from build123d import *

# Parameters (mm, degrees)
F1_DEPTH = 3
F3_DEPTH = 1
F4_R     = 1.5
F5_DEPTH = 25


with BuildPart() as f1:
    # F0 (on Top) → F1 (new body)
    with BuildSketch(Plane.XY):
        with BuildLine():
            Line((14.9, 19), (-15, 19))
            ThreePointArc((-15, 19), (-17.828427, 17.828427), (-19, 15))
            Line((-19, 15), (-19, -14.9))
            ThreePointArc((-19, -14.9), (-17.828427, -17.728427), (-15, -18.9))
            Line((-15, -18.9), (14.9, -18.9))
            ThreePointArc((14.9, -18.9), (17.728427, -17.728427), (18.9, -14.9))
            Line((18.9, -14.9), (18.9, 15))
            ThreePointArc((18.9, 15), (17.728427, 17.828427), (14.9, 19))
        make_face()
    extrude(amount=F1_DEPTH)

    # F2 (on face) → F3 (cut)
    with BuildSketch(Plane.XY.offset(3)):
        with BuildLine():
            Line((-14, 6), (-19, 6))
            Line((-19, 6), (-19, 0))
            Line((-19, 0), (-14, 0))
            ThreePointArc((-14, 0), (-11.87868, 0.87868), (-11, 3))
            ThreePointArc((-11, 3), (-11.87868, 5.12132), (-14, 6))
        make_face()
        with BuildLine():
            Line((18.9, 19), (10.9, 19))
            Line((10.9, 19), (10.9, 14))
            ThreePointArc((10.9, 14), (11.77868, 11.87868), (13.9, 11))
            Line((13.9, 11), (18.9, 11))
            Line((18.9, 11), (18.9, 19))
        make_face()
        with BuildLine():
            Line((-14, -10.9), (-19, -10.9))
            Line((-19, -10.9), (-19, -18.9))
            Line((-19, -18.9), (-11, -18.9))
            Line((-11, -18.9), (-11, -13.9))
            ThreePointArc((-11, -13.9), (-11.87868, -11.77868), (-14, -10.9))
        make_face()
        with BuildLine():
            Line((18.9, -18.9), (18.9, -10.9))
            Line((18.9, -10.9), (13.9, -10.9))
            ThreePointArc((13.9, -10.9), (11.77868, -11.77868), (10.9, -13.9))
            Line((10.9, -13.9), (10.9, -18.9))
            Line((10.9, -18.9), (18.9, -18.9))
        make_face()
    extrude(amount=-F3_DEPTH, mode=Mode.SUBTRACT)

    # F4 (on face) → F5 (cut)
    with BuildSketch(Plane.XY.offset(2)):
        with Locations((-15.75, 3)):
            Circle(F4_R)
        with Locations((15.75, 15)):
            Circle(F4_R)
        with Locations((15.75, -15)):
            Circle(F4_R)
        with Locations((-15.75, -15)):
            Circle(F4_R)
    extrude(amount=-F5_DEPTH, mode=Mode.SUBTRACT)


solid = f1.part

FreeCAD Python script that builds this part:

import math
import FreeCAD as App
import Part
import Sketcher
from FreeCAD import Vector

doc = App.newDocument("Part")
params = doc.addObject("Spreadsheet::Sheet", "Params")
for row, (alias, value) in enumerate([
    ("sketch1_radius", "4 mm"),
    ("sketch1_width", "29.9 mm"),
    ("pad1_length", "3 mm"),
    ("sketch2_radius", "3.000001 mm"),
    ("sketch2_width", "5 mm"),
    ("pocket1_length", "1 mm"),
    ("sketch3_diameter", "3 mm"),
    ("pocket2_length", "25 mm"),
], start=1):
    params.set(f"A{row}", alias)
    params.set(f"B{row}", "=" + value)
    params.setAlias(f"B{row}", alias)

body = doc.addObject("PartDesign::Body", "Body")

# Sketch on XY plane
sketch1 = body.newObject("Sketcher::SketchObject", "Sketch")
sketch1.AttachmentSupport = (doc.getObject("XY_Plane"), [""])
sketch1.MapMode = "FlatFace"
sketch1.addGeometry(Part.LineSegment(Vector(14.9, 19, 0), Vector(-15, 19, 0)), False)
sketch1.addGeometry(Part.ArcOfCircle(Part.Circle(Vector(-15, 15, 0), Vector(0, 0, 1), 4), math.radians(90.000006), math.radians(179.999994)), False)
sketch1.addGeometry(Part.LineSegment(Vector(-19, 15, 0), Vector(-19, -14.9, 0)), False)
sketch1.addGeometry(Part.ArcOfCircle(Part.Circle(Vector(-15, -14.9, 0), Vector(0, 0, 1), 4), math.radians(-179.999994), math.radians(-90.000006)), False)
sketch1.addGeometry(Part.LineSegment(Vector(-15, -18.9, 0), Vector(14.9, -18.9, 0)), False)
sketch1.addGeometry(Part.ArcOfCircle(Part.Circle(Vector(14.9, -14.9, 0), Vector(0, 0, 1), 4), math.radians(-89.999994), math.radians(-0.000006)), False)
sketch1.addGeometry(Part.LineSegment(Vector(18.9, -14.9, 0), Vector(18.9, 15, 0)), False)
sketch1.addGeometry(Part.ArcOfCircle(Part.Circle(Vector(14.9, 15, 0), Vector(0, 0, 1), 4), math.radians(0.000006), math.radians(89.999994)), False)
sketch1.addConstraint(Sketcher.Constraint("Tangent", 0, 2, 1, 1))
sketch1.addConstraint(Sketcher.Constraint("Tangent", 1, 2, 2, 1))
sketch1.addConstraint(Sketcher.Constraint("Tangent", 2, 2, 3, 1))
sketch1.addConstraint(Sketcher.Constraint("Tangent", 3, 2, 4, 1))
sketch1.addConstraint(Sketcher.Constraint("Tangent", 4, 2, 5, 1))
sketch1.addConstraint(Sketcher.Constraint("Tangent", 5, 2, 6, 1))
sketch1.addConstraint(Sketcher.Constraint("Tangent", 6, 2, 7, 1))
sketch1.addConstraint(Sketcher.Constraint("Tangent", 7, 2, 0, 1))
sketch1.addConstraint(Sketcher.Constraint("Horizontal", 0))
sketch1.addConstraint(Sketcher.Constraint("Vertical", 2))
sketch1.addConstraint(Sketcher.Constraint("Horizontal", 4))
sketch1.addConstraint(Sketcher.Constraint("Vertical", 6))
sketch1.addConstraint(Sketcher.Constraint("Equal", 1, 3))
sketch1.addConstraint(Sketcher.Constraint("Equal", 3, 5))
sketch1.addConstraint(Sketcher.Constraint("Equal", 5, 7))
sketch1.addConstraint(Sketcher.Constraint("Equal", 4, 2))
sketch1.addConstraint(Sketcher.Constraint("Radius", 1, 4.0))
sketch1.addConstraint(Sketcher.Constraint("DistanceX", 0, 2, 0, 1, 29.9))
sketch1.addConstraint(Sketcher.Constraint("DistanceX", 1, 3, -1, 1, 15.0))
sketch1.addConstraint(Sketcher.Constraint("DistanceY", -1, 1, 1, 3, 15.0))
sketch1.setExpression("Constraints[16]", "Params.sketch1_radius")
sketch1.setExpression("Constraints[17]", "Params.sketch1_width")
pad1 = body.newObject("PartDesign::Pad", "Pad")
pad1.Profile = sketch1
pad1.setExpression("Length", "Params.pad1_length")

# Sketch on XY plane
sketch2 = body.newObject("Sketcher::SketchObject", "Sketch001")
sketch2.AttachmentSupport = (doc.getObject("XY_Plane"), [""])
sketch2.MapMode = "FlatFace"
sketch2.AttachmentOffset = App.Placement(Vector(0, 0, 3), App.Rotation())
sketch2.addGeometry(Part.LineSegment(Vector(-14, 6, 0), Vector(-19, 6, 0)), False)
sketch2.addGeometry(Part.LineSegment(Vector(-19, 6, 0), Vector(-19, 0, 0)), False)
sketch2.addGeometry(Part.LineSegment(Vector(-19, 0, 0), Vector(-14, 0, 0)), False)
sketch2.addGeometry(Part.ArcOfCircle(Part.Circle(Vector(-14.000001, 3.000001, 0), Vector(0, 0, 1), 3.000001), math.radians(-89.999978), math.radians(-0.000022)), False)
sketch2.addGeometry(Part.ArcOfCircle(Part.Circle(Vector(-14.000001, 2.999999, 0), Vector(0, 0, 1), 3.000001), math.radians(0.000022), math.radians(89.999978)), False)
sketch2.addGeometry(Part.LineSegment(Vector(18.9, 19, 0), Vector(10.9, 19, 0)), False)
sketch2.addGeometry(Part.LineSegment(Vector(10.9, 19, 0), Vector(10.9, 14, 0)), False)
sketch2.addGeometry(Part.ArcOfCircle(Part.Circle(Vector(13.900001, 14.000001, 0), Vector(0, 0, 1), 3.000001), math.radians(-179.999978), math.radians(-90.000022)), False)
sketch2.addGeometry(Part.LineSegment(Vector(13.9, 11, 0), Vector(18.9, 11, 0)), False)
sketch2.addGeometry(Part.LineSegment(Vector(18.9, 11, 0), Vector(18.9, 19, 0)), False)
sketch2.addGeometry(Part.LineSegment(Vector(-14, -10.9, 0), Vector(-19, -10.9, 0)), False)
sketch2.addGeometry(Part.LineSegment(Vector(-19, -10.9, 0), Vector(-19, -18.9, 0)), False)
sketch2.addGeometry(Part.LineSegment(Vector(-19, -18.9, 0), Vector(-11, -18.9, 0)), False)
sketch2.addGeometry(Part.LineSegment(Vector(-11, -18.9, 0), Vector(-11, -13.9, 0)), False)
sketch2.addGeometry(Part.ArcOfCircle(Part.Circle(Vector(-14.000001, -13.900001, 0), Vector(0, 0, 1), 3.000001), math.radians(0.000022), math.radians(89.999978)), False)
sketch2.addGeometry(Part.LineSegment(Vector(18.9, -18.9, 0), Vector(18.9, -10.9, 0)), False)
sketch2.addGeometry(Part.LineSegment(Vector(18.9, -10.9, 0), Vector(13.9, -10.9, 0)), False)
sketch2.addGeometry(Part.ArcOfCircle(Part.Circle(Vector(13.900001, -13.900001, 0), Vector(0, 0, 1), 3.000001), math.radians(90.000022), math.radians(179.999978)), False)
sketch2.addGeometry(Part.LineSegment(Vector(10.9, -13.9, 0), Vector(10.9, -18.9, 0)), False)
sketch2.addGeometry(Part.LineSegment(Vector(10.9, -18.9, 0), Vector(18.9, -18.9, 0)), False)
sketch2.addConstraint(Sketcher.Constraint("Coincident", 0, 2, 1, 1))
sketch2.addConstraint(Sketcher.Constraint("Coincident", 1, 2, 2, 1))
sketch2.addConstraint(Sketcher.Constraint("Tangent", 2, 2, 3, 1))
sketch2.addConstraint(Sketcher.Constraint("Tangent", 3, 2, 4, 1))
sketch2.addConstraint(Sketcher.Constraint("Tangent", 4, 2, 0, 1))
sketch2.addConstraint(Sketcher.Constraint("Coincident", 5, 2, 6, 1))
sketch2.addConstraint(Sketcher.Constraint("Tangent", 6, 2, 7, 1))
sketch2.addConstraint(Sketcher.Constraint("Tangent", 7, 2, 8, 1))
sketch2.addConstraint(Sketcher.Constraint("Coincident", 8, 2, 9, 1))
sketch2.addConstraint(Sketcher.Constraint("Coincident", 9, 2, 5, 1))
sketch2.addConstraint(Sketcher.Constraint("Coincident", 10, 2, 11, 1))
sketch2.addConstraint(Sketcher.Constraint("Coincident", 11, 2, 12, 1))
sketch2.addConstraint(Sketcher.Constraint("Coincident", 12, 2, 13, 1))
sketch2.addConstraint(Sketcher.Constraint("Tangent", 13, 2, 14, 1))
sketch2.addConstraint(Sketcher.Constraint("Tangent", 14, 2, 10, 1))
sketch2.addConstraint(Sketcher.Constraint("Coincident", 15, 2, 16, 1))
sketch2.addConstraint(Sketcher.Constraint("Tangent", 16, 2, 17, 1))
sketch2.addConstraint(Sketcher.Constraint("Tangent", 17, 2, 18, 1))
sketch2.addConstraint(Sketcher.Constraint("Coincident", 18, 2, 19, 1))
sketch2.addConstraint(Sketcher.Constraint("Coincident", 19, 2, 15, 1))
sketch2.addConstraint(Sketcher.Constraint("Horizontal", 0))
sketch2.addConstraint(Sketcher.Constraint("Vertical", 1))
sketch2.addConstraint(Sketcher.Constraint("Horizontal", 2))
sketch2.addConstraint(Sketcher.Constraint("Horizontal", 5))
sketch2.addConstraint(Sketcher.Constraint("Vertical", 6))
sketch2.addConstraint(Sketcher.Constraint("Horizontal", 8))
sketch2.addConstraint(Sketcher.Constraint("Vertical", 9))
sketch2.addConstraint(Sketcher.Constraint("Horizontal", 10))
sketch2.addConstraint(Sketcher.Constraint("Vertical", 11))
sketch2.addConstraint(Sketcher.Constraint("Horizontal", 12))
sketch2.addConstraint(Sketcher.Constraint("Vertical", 13))
sketch2.addConstraint(Sketcher.Constraint("Vertical", 15))
sketch2.addConstraint(Sketcher.Constraint("Horizontal", 16))
sketch2.addConstraint(Sketcher.Constraint("Vertical", 18))
sketch2.addConstraint(Sketcher.Constraint("Horizontal", 19))
sketch2.addConstraint(Sketcher.Constraint("Equal", 3, 4))
sketch2.addConstraint(Sketcher.Constraint("Equal", 4, 7))
sketch2.addConstraint(Sketcher.Constraint("Equal", 7, 14))
sketch2.addConstraint(Sketcher.Constraint("Equal", 14, 17))
sketch2.addConstraint(Sketcher.Constraint("PointOnObject", 1, 2, -1))
sketch2.addConstraint(Sketcher.Constraint("Horizontal", 14, 3, 17, 3))
sketch2.addConstraint(Sketcher.Constraint("Horizontal", 4, 3, 3, 2))
sketch2.addConstraint(Sketcher.Constraint("Horizontal", 12, 2, 18, 2))
sketch2.addConstraint(Sketcher.Constraint("Vertical", 4, 3, 14, 3))
sketch2.addConstraint(Sketcher.Constraint("Vertical", 7, 3, 17, 3))
sketch2.addConstraint(Sketcher.Constraint("Vertical", 1, 2, 10, 2))
sketch2.addConstraint(Sketcher.Constraint("Vertical", 9, 2, 15, 2))
sketch2.addConstraint(Sketcher.Constraint("Equal", 2, 8))
sketch2.addConstraint(Sketcher.Constraint("Equal", 16, 6))
sketch2.addConstraint(Sketcher.Constraint("Equal", 9, 11))
sketch2.addConstraint(Sketcher.Constraint("Radius", 3, 3.000001))
sketch2.addConstraint(Sketcher.Constraint("DistanceX", 0, 2, 0, 1, 5.0))
sketch2.addConstraint(Sketcher.Constraint("DistanceX", 3, 3, -1, 1, 14.000001))
sketch2.addConstraint(Sketcher.Constraint("DistanceY", -1, 1, 7, 3, 14.000001))
sketch2.addConstraint(Sketcher.Constraint("DistanceX", -1, 1, 7, 3, 13.900001))
sketch2.addConstraint(Sketcher.Constraint("DistanceY", 14, 3, -1, 1, 13.900001))
sketch2.setExpression("Constraints[50]", "Params.sketch2_radius")
sketch2.setExpression("Constraints[51]", "Params.sketch2_width")
pocket1 = body.newObject("PartDesign::Pocket", "Pocket")
pocket1.Profile = sketch2
pocket1.setExpression("Length", "Params.pocket1_length")

# Sketch on XY plane
sketch3 = body.newObject("Sketcher::SketchObject", "Sketch002")
sketch3.AttachmentSupport = (doc.getObject("XY_Plane"), [""])
sketch3.MapMode = "FlatFace"
sketch3.AttachmentOffset = App.Placement(Vector(0, 0, 2), App.Rotation())
sketch3.addGeometry(Part.Circle(Vector(-15.75, 3, 0), Vector(0, 0, 1), 1.5), False)
sketch3.addGeometry(Part.Circle(Vector(15.75, 15, 0), Vector(0, 0, 1), 1.5), False)
sketch3.addGeometry(Part.Circle(Vector(15.75, -15, 0), Vector(0, 0, 1), 1.5), False)
sketch3.addGeometry(Part.Circle(Vector(-15.75, -15, 0), Vector(0, 0, 1), 1.5), False)
sketch3.addConstraint(Sketcher.Constraint("Equal", 0, 1))
sketch3.addConstraint(Sketcher.Constraint("Equal", 1, 2))
sketch3.addConstraint(Sketcher.Constraint("Equal", 2, 3))
sketch3.addConstraint(Sketcher.Constraint("Symmetric", 1, 3, 3, 3, -1, 1))
sketch3.addConstraint(Sketcher.Constraint("Symmetric", 2, 3, 3, 3, -2))
sketch3.addConstraint(Sketcher.Constraint("Vertical", 0, 3, 3, 3))
sketch3.addConstraint(Sketcher.Constraint("Diameter", 0, 3.0))
sketch3.addConstraint(Sketcher.Constraint("DistanceY", -1, 1, 0, 3, 3.0))
sketch3.addConstraint(Sketcher.Constraint("DistanceY", -1, 1, 1, 3, 15.0))
sketch3.addConstraint(Sketcher.Constraint("DistanceX", 0, 3, 1, 3, 31.5))
sketch3.setExpression("Constraints[6]", "Params.sketch3_diameter")
pocket2 = body.newObject("PartDesign::Pocket", "Pocket001")
pocket2.Profile = sketch3
pocket2.setExpression("Length", "Params.pocket2_length")

doc.recompute()
